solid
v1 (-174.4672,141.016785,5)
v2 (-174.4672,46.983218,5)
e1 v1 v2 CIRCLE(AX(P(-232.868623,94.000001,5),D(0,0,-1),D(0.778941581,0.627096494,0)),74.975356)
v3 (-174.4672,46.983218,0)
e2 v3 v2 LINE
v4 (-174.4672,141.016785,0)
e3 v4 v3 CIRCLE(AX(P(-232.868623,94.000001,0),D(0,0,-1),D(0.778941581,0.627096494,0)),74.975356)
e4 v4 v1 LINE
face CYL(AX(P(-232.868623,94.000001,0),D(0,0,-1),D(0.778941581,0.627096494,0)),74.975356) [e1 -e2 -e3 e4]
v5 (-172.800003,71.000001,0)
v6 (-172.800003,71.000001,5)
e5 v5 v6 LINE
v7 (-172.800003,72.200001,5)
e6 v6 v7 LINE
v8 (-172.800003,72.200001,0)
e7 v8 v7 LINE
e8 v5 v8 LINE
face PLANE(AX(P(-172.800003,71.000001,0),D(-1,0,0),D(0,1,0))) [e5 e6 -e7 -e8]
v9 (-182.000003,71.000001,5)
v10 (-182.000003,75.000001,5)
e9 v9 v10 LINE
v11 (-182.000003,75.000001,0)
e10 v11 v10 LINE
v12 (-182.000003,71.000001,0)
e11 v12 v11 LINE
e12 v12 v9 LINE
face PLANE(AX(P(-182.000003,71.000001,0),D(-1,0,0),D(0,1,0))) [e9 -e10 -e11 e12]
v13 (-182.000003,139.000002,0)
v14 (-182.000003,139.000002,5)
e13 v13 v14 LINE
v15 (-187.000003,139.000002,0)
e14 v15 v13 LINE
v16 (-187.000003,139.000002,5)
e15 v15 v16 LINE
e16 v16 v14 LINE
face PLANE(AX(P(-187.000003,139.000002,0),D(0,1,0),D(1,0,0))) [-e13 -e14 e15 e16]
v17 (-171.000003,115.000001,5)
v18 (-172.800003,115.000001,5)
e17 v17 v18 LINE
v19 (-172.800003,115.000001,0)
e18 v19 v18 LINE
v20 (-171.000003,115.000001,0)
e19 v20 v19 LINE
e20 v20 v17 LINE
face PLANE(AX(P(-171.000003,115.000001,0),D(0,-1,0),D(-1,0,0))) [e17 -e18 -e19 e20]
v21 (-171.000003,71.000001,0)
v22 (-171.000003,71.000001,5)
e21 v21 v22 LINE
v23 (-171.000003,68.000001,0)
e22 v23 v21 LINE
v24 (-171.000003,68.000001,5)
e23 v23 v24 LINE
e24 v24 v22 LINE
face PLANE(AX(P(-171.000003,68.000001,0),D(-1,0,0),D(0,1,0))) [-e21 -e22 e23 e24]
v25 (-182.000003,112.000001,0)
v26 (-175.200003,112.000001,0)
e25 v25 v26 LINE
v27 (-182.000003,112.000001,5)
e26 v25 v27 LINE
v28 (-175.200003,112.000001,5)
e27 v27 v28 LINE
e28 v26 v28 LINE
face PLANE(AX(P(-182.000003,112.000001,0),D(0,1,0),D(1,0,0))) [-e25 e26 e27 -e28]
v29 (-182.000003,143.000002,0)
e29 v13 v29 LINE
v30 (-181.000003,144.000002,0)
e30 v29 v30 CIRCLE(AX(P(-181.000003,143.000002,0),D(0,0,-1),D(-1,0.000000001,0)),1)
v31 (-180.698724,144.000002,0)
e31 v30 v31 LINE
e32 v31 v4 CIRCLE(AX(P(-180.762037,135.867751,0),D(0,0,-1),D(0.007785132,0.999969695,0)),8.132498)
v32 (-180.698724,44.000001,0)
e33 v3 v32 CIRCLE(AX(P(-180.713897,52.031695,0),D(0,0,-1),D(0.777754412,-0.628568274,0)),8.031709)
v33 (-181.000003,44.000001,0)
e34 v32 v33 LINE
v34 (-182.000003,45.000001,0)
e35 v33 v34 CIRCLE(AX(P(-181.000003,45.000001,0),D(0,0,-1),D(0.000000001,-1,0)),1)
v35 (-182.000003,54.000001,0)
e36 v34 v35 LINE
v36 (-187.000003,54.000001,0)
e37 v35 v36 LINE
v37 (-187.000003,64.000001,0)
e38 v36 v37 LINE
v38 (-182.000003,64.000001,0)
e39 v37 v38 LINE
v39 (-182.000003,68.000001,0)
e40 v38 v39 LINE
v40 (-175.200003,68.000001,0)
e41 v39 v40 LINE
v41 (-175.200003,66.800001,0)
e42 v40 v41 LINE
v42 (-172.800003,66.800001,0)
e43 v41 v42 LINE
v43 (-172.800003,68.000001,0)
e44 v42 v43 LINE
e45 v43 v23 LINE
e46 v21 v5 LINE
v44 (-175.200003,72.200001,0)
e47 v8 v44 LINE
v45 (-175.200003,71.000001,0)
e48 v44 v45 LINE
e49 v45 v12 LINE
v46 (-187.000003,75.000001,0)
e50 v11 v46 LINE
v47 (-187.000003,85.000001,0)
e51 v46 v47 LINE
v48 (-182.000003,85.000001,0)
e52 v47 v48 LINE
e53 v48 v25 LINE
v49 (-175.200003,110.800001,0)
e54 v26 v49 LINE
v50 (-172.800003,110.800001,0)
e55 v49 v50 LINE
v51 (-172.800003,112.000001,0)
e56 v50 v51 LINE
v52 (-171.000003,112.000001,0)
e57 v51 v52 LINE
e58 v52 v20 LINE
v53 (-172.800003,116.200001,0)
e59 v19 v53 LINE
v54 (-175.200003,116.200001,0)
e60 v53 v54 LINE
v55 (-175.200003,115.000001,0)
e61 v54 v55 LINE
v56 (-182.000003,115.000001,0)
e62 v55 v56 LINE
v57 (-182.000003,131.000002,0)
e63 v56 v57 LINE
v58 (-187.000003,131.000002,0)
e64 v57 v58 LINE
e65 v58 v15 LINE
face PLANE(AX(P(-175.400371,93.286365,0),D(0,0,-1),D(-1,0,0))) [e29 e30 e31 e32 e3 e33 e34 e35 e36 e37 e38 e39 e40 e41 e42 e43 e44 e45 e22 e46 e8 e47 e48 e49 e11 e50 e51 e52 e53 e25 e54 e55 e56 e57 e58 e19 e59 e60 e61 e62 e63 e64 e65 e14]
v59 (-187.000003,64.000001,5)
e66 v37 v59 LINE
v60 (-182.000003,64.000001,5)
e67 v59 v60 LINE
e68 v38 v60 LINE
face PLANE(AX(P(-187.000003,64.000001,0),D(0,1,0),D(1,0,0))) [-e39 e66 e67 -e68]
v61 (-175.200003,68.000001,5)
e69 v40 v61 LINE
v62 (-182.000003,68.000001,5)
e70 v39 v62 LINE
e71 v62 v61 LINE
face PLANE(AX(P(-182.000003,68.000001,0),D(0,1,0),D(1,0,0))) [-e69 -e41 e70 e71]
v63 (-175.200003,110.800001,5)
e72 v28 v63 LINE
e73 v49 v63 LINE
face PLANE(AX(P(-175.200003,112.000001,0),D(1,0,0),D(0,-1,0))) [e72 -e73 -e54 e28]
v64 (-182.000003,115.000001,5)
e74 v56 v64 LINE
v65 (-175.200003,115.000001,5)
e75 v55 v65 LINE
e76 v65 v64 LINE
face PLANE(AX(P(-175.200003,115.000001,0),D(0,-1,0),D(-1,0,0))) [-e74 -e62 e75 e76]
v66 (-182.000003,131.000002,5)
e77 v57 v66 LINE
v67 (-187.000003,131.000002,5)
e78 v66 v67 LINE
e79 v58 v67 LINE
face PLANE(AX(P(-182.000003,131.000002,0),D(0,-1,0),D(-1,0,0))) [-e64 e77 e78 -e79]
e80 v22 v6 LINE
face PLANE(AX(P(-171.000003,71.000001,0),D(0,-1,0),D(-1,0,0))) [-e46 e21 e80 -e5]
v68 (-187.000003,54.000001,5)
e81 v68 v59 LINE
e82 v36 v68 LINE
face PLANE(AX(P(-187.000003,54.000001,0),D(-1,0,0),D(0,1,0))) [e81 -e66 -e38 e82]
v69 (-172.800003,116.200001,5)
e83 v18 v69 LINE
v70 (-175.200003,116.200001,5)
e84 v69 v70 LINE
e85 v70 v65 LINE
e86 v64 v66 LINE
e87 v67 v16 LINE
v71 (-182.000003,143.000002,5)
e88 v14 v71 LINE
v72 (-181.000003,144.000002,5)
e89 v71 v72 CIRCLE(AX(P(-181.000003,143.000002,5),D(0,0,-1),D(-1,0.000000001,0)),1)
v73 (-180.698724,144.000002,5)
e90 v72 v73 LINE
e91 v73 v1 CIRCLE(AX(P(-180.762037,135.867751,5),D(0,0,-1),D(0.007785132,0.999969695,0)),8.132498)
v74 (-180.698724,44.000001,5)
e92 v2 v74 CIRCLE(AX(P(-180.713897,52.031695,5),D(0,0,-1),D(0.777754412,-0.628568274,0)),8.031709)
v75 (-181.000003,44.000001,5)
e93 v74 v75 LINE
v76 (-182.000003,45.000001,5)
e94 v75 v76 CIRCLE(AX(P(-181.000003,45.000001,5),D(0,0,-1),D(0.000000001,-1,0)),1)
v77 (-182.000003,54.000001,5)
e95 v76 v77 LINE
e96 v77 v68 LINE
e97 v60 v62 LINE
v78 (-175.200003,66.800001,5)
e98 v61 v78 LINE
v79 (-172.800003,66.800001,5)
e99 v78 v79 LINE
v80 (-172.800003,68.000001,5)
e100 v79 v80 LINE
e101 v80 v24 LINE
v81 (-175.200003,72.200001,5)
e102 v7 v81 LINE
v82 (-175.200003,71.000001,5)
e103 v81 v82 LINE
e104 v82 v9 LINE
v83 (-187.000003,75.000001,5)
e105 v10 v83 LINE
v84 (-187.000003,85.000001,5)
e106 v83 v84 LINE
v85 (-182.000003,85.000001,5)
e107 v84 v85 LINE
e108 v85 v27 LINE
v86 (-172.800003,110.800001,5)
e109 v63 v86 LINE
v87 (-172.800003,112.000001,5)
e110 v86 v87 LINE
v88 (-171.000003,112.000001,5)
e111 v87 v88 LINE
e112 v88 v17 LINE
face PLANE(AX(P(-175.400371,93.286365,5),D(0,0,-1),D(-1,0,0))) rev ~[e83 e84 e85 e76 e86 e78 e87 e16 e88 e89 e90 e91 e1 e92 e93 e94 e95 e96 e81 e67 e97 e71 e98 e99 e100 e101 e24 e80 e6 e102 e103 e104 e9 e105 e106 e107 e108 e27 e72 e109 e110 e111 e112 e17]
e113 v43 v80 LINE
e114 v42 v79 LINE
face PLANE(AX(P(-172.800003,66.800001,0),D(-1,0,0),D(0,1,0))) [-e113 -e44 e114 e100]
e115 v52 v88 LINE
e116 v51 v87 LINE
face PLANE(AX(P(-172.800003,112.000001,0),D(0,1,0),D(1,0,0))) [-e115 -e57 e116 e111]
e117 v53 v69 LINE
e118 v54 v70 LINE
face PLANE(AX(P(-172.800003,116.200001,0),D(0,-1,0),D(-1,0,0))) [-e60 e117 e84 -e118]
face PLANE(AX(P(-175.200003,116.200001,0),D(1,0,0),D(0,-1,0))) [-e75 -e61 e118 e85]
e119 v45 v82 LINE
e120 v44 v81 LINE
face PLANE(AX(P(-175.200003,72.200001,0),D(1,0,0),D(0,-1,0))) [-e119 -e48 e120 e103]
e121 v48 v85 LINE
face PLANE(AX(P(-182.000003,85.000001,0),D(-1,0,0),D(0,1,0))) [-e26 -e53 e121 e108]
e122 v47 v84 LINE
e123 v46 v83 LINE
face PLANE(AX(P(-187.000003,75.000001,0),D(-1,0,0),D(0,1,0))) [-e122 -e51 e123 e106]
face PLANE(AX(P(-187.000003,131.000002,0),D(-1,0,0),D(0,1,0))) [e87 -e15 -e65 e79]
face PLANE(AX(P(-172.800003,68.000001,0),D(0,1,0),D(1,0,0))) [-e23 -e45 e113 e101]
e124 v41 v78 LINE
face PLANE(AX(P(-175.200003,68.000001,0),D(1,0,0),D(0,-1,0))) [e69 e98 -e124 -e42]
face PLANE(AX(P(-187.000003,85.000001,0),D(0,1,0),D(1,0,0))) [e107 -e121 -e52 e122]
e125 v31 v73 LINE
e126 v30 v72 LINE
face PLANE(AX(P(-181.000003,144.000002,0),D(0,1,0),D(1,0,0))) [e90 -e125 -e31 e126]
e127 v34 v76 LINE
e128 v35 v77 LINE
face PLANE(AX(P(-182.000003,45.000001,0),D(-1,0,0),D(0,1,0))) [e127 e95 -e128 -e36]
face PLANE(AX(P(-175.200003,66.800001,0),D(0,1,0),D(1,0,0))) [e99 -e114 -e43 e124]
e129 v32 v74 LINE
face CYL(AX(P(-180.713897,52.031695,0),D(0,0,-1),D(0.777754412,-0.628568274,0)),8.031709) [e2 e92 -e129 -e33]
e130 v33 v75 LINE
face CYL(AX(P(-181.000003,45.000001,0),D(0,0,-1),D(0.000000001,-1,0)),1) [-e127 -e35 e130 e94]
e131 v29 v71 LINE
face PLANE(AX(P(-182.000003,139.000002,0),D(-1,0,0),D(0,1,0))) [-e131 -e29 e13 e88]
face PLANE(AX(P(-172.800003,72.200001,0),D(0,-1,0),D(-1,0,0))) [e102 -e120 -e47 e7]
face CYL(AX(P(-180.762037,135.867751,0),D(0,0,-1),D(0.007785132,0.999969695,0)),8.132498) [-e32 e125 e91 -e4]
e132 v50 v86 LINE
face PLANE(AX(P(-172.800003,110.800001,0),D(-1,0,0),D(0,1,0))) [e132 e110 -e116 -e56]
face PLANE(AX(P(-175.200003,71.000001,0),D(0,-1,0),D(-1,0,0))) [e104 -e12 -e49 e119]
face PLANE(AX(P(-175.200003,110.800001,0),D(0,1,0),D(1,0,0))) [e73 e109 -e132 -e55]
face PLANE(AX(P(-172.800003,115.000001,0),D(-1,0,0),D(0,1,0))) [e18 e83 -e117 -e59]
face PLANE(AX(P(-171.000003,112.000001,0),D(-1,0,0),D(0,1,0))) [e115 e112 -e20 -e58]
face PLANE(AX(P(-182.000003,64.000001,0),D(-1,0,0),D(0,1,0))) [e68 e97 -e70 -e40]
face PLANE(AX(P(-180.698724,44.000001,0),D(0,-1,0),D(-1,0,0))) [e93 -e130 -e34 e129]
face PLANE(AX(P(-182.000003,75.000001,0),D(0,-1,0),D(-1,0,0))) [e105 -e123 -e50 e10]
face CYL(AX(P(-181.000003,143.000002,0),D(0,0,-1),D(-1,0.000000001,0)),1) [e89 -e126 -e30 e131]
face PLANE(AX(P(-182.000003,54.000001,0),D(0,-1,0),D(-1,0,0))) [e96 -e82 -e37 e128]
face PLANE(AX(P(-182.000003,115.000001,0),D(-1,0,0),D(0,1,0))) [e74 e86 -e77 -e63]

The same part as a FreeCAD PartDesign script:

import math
import FreeCAD as App
import Part
import Sketcher
from FreeCAD import Vector

doc = App.newDocument("Part")
body = doc.addObject("PartDesign::Body", "Body")

sketch1 = body.newObject("Sketcher::SketchObject", "Sketch")
sketch1.AttachmentSupport = (doc.getObject("XY_Plane"), [""])
sketch1.MapMode = "FlatFace"
sketch1.addGeometry([
    Part.LineSegment(Vector(-182.000003, 54.000001, 0), Vector(-182.000003, 45.000001, 0)),
    Part.ArcOfCircle(Part.Circle(Vector(-181.000003, 45.000001, 0), Vector(0, 0, 1), 1), math.radians(180), math.radians(270)),
    Part.LineSegment(Vector(-181.000003, 44.000001, 0), Vector(-180.698724, 44.000001, 0)),
    Part.ArcOfCircle(Part.Circle(Vector(-180.713897, 52.031695, 0), Vector(0, 0, 1), 8.031709), math.radians(-89.891763), math.radians(-38.944571)),
    Part.ArcOfCircle(Part.Circle(Vector(-232.868623, 94.000001, 0), Vector(0, 0, 1), 74.975356), math.radians(-38.836231), math.radians(38.836231)),
    Part.ArcOfCircle(Part.Circle(Vector(-180.762037, 135.867751, 0), Vector(0, 0, 1), 8.132498), math.radians(39.282386), math.radians(89.55394)),
    Part.LineSegment(Vector(-180.698724, 144.000002, 0), Vector(-181.000003, 144.000002, 0)),
    Part.ArcOfCircle(Part.Circle(Vector(-181.000003, 143.000002, 0), Vector(0, 0, 1), 1), math.radians(90), math.radians(180)),
    Part.LineSegment(Vector(-182.000003, 143.000002, 0), Vector(-182.000003, 139.000002, 0)),
    Part.LineSegment(Vector(-182.000003, 139.000002, 0), Vector(-187.000003, 139.000002, 0)),
    Part.LineSegment(Vector(-187.000003, 139.000002, 0), Vector(-187.000003, 131.000002, 0)),
    Part.LineSegment(Vector(-187.000003, 131.000002, 0), Vector(-182.000003, 131.000002, 0)),
    Part.LineSegment(Vector(-182.000003, 131.000002, 0), Vector(-182.000003, 115.000001, 0)),
    Part.LineSegment(Vector(-182.000003, 115.000001, 0), Vector(-175.200003, 115.000001, 0)),
    Part.LineSegment(Vector(-175.200003, 115.000001, 0), Vector(-175.200003, 116.200001, 0)),
    Part.LineSegment(Vector(-175.200003, 116.200001, 0), Vector(-172.800003, 116.200001, 0)),
    Part.LineSegment(Vector(-172.800003, 116.200001, 0), Vector(-172.800003, 115.000001, 0)),
    Part.LineSegment(Vector(-172.800003, 115.000001, 0), Vector(-171.000003, 115.000001, 0)),
    Part.LineSegment(Vector(-171.000003, 115.000001, 0), Vector(-171.000003, 112.000001, 0)),
    Part.LineSegment(Vector(-171.000003, 112.000001, 0), Vector(-172.800003, 112.000001, 0)),
    Part.LineSegment(Vector(-172.800003, 112.000001, 0), Vector(-172.800003, 110.800001, 0)),
    Part.LineSegment(Vector(-172.800003, 110.800001, 0), Vector(-175.200003, 110.800001, 0)),
    Part.LineSegment(Vector(-175.200003, 110.800001, 0), Vector(-175.200003, 112.000001, 0)),
    Part.LineSegment(Vector(-175.200003, 112.000001, 0), Vector(-182.000003, 112.000001, 0)),
    Part.LineSegment(Vector(-182.000003, 112.000001, 0), Vector(-182.000003, 85.000001, 0)),
    Part.LineSegment(Vector(-182.000003, 85.000001, 0), Vector(-187.000003, 85.000001, 0)),
    Part.LineSegment(Vector(-187.000003, 85.000001, 0), Vector(-187.000003, 75.000001, 0)),
    Part.LineSegment(Vector(-187.000003, 75.000001, 0), Vector(-182.000003, 75.000001, 0)),
    Part.LineSegment(Vector(-182.000003, 75.000001, 0), Vector(-182.000003, 71.000001, 0)),
    Part.LineSegment(Vector(-182.000003, 71.000001, 0), Vector(-175.200003, 71.000001, 0)),
    Part.LineSegment(Vector(-175.200003, 71.000001, 0), Vector(-175.200003, 72.200001, 0)),
    Part.LineSegment(Vector(-175.200003, 72.200001, 0), Vector(-172.800003, 72.200001, 0)),
    Part.LineSegment(Vector(-172.800003, 72.200001, 0), Vector(-172.800003, 71.000001, 0)),
    Part.LineSegment(Vector(-172.800003, 71.000001, 0), Vector(-171.000003, 71.000001, 0)),
    Part.LineSegment(Vector(-171.000003, 71.000001, 0), Vector(-171.000003, 68.000001, 0)),
    Part.LineSegment(Vector(-171.000003, 68.000001, 0), Vector(-172.800003, 68.000001, 0)),
    Part.LineSegment(Vector(-172.800003, 68.000001, 0), Vector(-172.800003, 66.800001, 0)),
    Part.LineSegment(Vector(-172.800003, 66.800001, 0), Vector(-175.200003, 66.800001, 0)),
    Part.LineSegment(Vector(-175.200003, 66.800001, 0), Vector(-175.200003, 68.000001, 0)),
    Part.LineSegment(Vector(-175.200003, 68.000001, 0), Vector(-182.000003, 68.000001, 0)),
    Part.LineSegment(Vector(-182.000003, 68.000001, 0), Vector(-182.000003, 64.000001, 0)),
    Part.LineSegment(Vector(-182.000003, 64.000001, 0), Vector(-187.000003, 64.000001, 0)),
    Part.LineSegment(Vector(-187.000003, 64.000001, 0), Vector(-187.000003, 54.000001, 0)),
    Part.LineSegment(Vector(-187.000003, 54.000001, 0), Vector(-182.000003, 54.000001, 0)),
], False)
sketch1.addConstraint([
    Sketcher.Constraint("Tangent", 0, 2, 1, 1),
    Sketcher.Constraint("Tangent", 1, 2, 2, 1),
    Sketcher.Constraint("Coincident", 2, 2, 3, 1),
    Sketcher.Constraint("Coincident", 3, 2, 4, 1),
    Sketcher.Constraint("Coincident", 4, 2, 5, 1),
    Sketcher.Constraint("Coincident", 5, 2, 6, 1),
    Sketcher.Constraint("Tangent", 6, 2, 7, 1),
    Sketcher.Constraint("Tangent", 7, 2, 8, 1),
    Sketcher.Constraint("Coincident", 8, 2, 9, 1),
    Sketcher.Constraint("Coincident", 9, 2, 10, 1),
    Sketcher.Constraint("Coincident", 10, 2, 11, 1),
    Sketcher.Constraint("Coincident", 11, 2, 12, 1),
    Sketcher.Constraint("Coincident", 12, 2, 13, 1),
    Sketcher.Constraint("Coincident", 13, 2, 14, 1),
    Sketcher.Constraint("Coincident", 14, 2, 15, 1),
    Sketcher.Constraint("Coincident", 15, 2, 16, 1),
    Sketcher.Constraint("Coincident", 16, 2, 17, 1),
    Sketcher.Constraint("Coincident", 17, 2, 18, 1),
    Sketcher.Constraint("Coincident", 18, 2, 19, 1),
    Sketcher.Constraint("Coincident", 19, 2, 20, 1),
    Sketcher.Constraint("Coincident", 20, 2, 21, 1),
    Sketcher.Constraint("Coincident", 21, 2, 22, 1),
    Sketcher.Constraint("Coincident", 22, 2, 23, 1),
    Sketcher.Constraint("Coincident", 23, 2, 24, 1),
    Sketcher.Constraint("Coincident", 24, 2, 25, 1),
    Sketcher.Constraint("Coincident", 25, 2, 26, 1),
    Sketcher.Constraint("Coincident", 26, 2, 27, 1),
    Sketcher.Constraint("Coincident", 27, 2, 28, 1),
    Sketcher.Constraint("Coincident", 28, 2, 29, 1),
    Sketcher.Constraint("Coincident", 29, 2, 30, 1),
    Sketcher.Constraint("Coincident", 30, 2, 31, 1),
    Sketcher.Constraint("Coincident", 31, 2, 32, 1),
    Sketcher.Constraint("Coincident", 32, 2, 33, 1),
    Sketcher.Constraint("Coincident", 33, 2, 34, 1),
    Sketcher.Constraint("Coincident", 34, 2, 35, 1),
    Sketcher.Constraint("Coincident", 35, 2, 36, 1),
    Sketcher.Constraint("Coincident", 36, 2, 37, 1),
    Sketcher.Constraint("Coincident", 37, 2, 38, 1),
    Sketcher.Constraint("Coincident", 38, 2, 39, 1),
    Sketcher.Constraint("Coincident", 39, 2, 40, 1),
    Sketcher.Constraint("Coincident", 40, 2, 41, 1),
    Sketcher.Constraint("Coincident", 41, 2, 42, 1),
    Sketcher.Constraint("Coincident", 42, 2, 43, 1),
    Sketcher.Constraint("Coincident", 43, 2, 0, 1),
    Sketcher.Constraint("Vertical", 0),
    Sketcher.Constraint("Horizontal", 2),
    Sketcher.Constraint("Horizontal", 6),
    Sketcher.Constraint("Vertical", 8),
    Sketcher.Constraint("Horizontal", 9),
    Sketcher.Constraint("Vertical", 10),
    Sketcher.Constraint("Horizontal", 11),
    Sketcher.Constraint("Vertical", 12),
    Sketcher.Constraint("Horizontal", 13),
    Sketcher.Constraint("Vertical", 14),
    Sketcher.Constraint("Horizontal", 15),
    Sketcher.Constraint("Vertical", 16),
    Sketcher.Constraint("Horizontal", 17),
    Sketcher.Constraint("Vertical", 18),
    Sketcher.Constraint("Horizontal", 19),
    Sketcher.Constraint("Vertical", 20),
    Sketcher.Constraint("Horizontal", 21),
    Sketcher.Constraint("Vertical", 22),
    Sketcher.Constraint("Horizontal", 23),
    Sketcher.Constraint("Vertical", 24),
    Sketcher.Constraint("Horizontal", 25),
    Sketcher.Constraint("Vertical", 26),
    Sketcher.Constraint("Horizontal", 27),
    Sketcher.Constraint("Vertical", 28),
    Sketcher.Constraint("Horizontal", 29),
    Sketcher.Constraint("Vertical", 30),
    Sketcher.Constraint("Horizontal", 31),
    Sketcher.Constraint("Vertical", 32),
    Sketcher.Constraint("Horizontal", 33),
    Sketcher.Constraint("Vertical", 34),
    Sketcher.Constraint("Horizontal", 35),
    Sketcher.Constraint("Vertical", 36),
    Sketcher.Constraint("Horizontal", 37),
    Sketcher.Constraint("Vertical", 38),
    Sketcher.Constraint("Horizontal", 39),
    Sketcher.Constraint("Vertical", 40),
    Sketcher.Constraint("Horizontal", 41),
    Sketcher.Constraint("Vertical", 42),
    Sketcher.Constraint("Horizontal", 43),
    Sketcher.Constraint("Equal", 1, 7),
    Sketcher.Constraint("Horizontal", 13, 2, 16, 2),
    Sketcher.Constraint("Horizontal", 19, 2, 22, 2),
    Sketcher.Constraint("Horizontal", 29, 2, 32, 2),
    Sketcher.Constraint("Horizontal", 35, 2, 38, 2),
    Sketcher.Constraint("Vertical", 1, 3, 7, 3),
    Sketcher.Constraint("Vertical", 3, 2, 4, 2),
    Sketcher.Constraint("Vertical", 2, 2, 5, 2),
    Sketcher.Constraint("Vertical", 8, 2, 11, 2),
    Sketcher.Constraint("Vertical", 16, 2, 19, 2),
    Sketcher.Constraint("Vertical", 14, 2, 21, 2),
    Sketcher.Constraint("Vertical", 12, 2, 23, 2),
    Sketcher.Constraint("Vertical", 10, 2, 25, 2),
    Sketcher.Constraint("Vertical", 24, 2, 27, 2),
    Sketcher.Constraint("Vertical", 22, 2, 29, 2),
    Sketcher.Constraint("Vertical", 20, 2, 31, 2),
    Sketcher.Constraint("Vertical", 18, 2, 33, 2),
    Sketcher.Constraint("Vertical", 32, 2, 35, 2),
    Sketcher.Constraint("Vertical", 30, 2, 37, 2),
    Sketcher.Constraint("Vertical", 28, 2, 39, 2),
    Sketcher.Constraint("Vertical", 26, 2, 41, 2),
    Sketcher.Constraint("Equal", 16, 20),
    Sketcher.Constraint("Equal", 8, 28),
    Sketcher.Constraint("Equal", 22, 30),
    Sketcher.Constraint("Equal", 18, 34),
    Sketcher.Constraint("Equal", 32, 36),
    Sketcher.Constraint("Equal", 28, 40),
    Sketcher.Constraint("Equal", 26, 42),
    Sketcher.Constraint("Radius", 1, 1.0),
    Sketcher.Constraint("DistanceX", 9, 2, 9, 1, 5.0),
    Sketcher.Constraint("DistanceY", 0, 2, 0, 1, 9.0),
    Sketcher.Constraint("DistanceY", 8, 2, 8, 1, 4.0),
    Sketcher.Constraint("DistanceY", 10, 2, 10, 1, 8.0),
    Sketcher.Constraint("DistanceY", 12, 2, 12, 1, 16.000001),
    Sketcher.Constraint("DistanceY", 18, 2, 18, 1, 3.0),
    Sketcher.Constraint("DistanceY", 24, 2, 24, 1, 27.0),
    Sketcher.Constraint("DistanceY", 26, 2, 26, 1, 10.0),
    Sketcher.Constraint("DistanceX", 13, 1, 13, 2, 6.8),
    Sketcher.Constraint("DistanceX", 15, 1, 15, 2, 2.4),
    Sketcher.Constraint("DistanceX", 17, 1, 17, 2, 1.8),
    Sketcher.Constraint("DistanceY", 14, 1, 14, 2, 1.2),
    Sketcher.Constraint("DistanceY", -1, 1, 1, 3, 45.000001),
    Sketcher.Constraint("DistanceY", -1, 1, 4, 3, 94.000001),
    Sketcher.Constraint("Radius", 3, 8.031709),
    Sketcher.Constraint("Radius", 4, 74.975356),
    Sketcher.Constraint("Radius", 5, 8.132498),
    Sketcher.Constraint("DistanceX", 2, 1, 2, 2, 0.301278),
    Sketcher.Constraint("DistanceX", 3, 2, -1, 1, 174.4672),
    Sketcher.Constraint("DistanceX", 4, 3, 2, 2, 52.169898),
    Sketcher.Constraint("DistanceY", -1, 1, 3, 2, 46.983218),
])
pad1 = body.newObject("PartDesign::Pad", "Pad")
pad1.Profile = sketch1
pad1.Length = 5

doc.recompute()
